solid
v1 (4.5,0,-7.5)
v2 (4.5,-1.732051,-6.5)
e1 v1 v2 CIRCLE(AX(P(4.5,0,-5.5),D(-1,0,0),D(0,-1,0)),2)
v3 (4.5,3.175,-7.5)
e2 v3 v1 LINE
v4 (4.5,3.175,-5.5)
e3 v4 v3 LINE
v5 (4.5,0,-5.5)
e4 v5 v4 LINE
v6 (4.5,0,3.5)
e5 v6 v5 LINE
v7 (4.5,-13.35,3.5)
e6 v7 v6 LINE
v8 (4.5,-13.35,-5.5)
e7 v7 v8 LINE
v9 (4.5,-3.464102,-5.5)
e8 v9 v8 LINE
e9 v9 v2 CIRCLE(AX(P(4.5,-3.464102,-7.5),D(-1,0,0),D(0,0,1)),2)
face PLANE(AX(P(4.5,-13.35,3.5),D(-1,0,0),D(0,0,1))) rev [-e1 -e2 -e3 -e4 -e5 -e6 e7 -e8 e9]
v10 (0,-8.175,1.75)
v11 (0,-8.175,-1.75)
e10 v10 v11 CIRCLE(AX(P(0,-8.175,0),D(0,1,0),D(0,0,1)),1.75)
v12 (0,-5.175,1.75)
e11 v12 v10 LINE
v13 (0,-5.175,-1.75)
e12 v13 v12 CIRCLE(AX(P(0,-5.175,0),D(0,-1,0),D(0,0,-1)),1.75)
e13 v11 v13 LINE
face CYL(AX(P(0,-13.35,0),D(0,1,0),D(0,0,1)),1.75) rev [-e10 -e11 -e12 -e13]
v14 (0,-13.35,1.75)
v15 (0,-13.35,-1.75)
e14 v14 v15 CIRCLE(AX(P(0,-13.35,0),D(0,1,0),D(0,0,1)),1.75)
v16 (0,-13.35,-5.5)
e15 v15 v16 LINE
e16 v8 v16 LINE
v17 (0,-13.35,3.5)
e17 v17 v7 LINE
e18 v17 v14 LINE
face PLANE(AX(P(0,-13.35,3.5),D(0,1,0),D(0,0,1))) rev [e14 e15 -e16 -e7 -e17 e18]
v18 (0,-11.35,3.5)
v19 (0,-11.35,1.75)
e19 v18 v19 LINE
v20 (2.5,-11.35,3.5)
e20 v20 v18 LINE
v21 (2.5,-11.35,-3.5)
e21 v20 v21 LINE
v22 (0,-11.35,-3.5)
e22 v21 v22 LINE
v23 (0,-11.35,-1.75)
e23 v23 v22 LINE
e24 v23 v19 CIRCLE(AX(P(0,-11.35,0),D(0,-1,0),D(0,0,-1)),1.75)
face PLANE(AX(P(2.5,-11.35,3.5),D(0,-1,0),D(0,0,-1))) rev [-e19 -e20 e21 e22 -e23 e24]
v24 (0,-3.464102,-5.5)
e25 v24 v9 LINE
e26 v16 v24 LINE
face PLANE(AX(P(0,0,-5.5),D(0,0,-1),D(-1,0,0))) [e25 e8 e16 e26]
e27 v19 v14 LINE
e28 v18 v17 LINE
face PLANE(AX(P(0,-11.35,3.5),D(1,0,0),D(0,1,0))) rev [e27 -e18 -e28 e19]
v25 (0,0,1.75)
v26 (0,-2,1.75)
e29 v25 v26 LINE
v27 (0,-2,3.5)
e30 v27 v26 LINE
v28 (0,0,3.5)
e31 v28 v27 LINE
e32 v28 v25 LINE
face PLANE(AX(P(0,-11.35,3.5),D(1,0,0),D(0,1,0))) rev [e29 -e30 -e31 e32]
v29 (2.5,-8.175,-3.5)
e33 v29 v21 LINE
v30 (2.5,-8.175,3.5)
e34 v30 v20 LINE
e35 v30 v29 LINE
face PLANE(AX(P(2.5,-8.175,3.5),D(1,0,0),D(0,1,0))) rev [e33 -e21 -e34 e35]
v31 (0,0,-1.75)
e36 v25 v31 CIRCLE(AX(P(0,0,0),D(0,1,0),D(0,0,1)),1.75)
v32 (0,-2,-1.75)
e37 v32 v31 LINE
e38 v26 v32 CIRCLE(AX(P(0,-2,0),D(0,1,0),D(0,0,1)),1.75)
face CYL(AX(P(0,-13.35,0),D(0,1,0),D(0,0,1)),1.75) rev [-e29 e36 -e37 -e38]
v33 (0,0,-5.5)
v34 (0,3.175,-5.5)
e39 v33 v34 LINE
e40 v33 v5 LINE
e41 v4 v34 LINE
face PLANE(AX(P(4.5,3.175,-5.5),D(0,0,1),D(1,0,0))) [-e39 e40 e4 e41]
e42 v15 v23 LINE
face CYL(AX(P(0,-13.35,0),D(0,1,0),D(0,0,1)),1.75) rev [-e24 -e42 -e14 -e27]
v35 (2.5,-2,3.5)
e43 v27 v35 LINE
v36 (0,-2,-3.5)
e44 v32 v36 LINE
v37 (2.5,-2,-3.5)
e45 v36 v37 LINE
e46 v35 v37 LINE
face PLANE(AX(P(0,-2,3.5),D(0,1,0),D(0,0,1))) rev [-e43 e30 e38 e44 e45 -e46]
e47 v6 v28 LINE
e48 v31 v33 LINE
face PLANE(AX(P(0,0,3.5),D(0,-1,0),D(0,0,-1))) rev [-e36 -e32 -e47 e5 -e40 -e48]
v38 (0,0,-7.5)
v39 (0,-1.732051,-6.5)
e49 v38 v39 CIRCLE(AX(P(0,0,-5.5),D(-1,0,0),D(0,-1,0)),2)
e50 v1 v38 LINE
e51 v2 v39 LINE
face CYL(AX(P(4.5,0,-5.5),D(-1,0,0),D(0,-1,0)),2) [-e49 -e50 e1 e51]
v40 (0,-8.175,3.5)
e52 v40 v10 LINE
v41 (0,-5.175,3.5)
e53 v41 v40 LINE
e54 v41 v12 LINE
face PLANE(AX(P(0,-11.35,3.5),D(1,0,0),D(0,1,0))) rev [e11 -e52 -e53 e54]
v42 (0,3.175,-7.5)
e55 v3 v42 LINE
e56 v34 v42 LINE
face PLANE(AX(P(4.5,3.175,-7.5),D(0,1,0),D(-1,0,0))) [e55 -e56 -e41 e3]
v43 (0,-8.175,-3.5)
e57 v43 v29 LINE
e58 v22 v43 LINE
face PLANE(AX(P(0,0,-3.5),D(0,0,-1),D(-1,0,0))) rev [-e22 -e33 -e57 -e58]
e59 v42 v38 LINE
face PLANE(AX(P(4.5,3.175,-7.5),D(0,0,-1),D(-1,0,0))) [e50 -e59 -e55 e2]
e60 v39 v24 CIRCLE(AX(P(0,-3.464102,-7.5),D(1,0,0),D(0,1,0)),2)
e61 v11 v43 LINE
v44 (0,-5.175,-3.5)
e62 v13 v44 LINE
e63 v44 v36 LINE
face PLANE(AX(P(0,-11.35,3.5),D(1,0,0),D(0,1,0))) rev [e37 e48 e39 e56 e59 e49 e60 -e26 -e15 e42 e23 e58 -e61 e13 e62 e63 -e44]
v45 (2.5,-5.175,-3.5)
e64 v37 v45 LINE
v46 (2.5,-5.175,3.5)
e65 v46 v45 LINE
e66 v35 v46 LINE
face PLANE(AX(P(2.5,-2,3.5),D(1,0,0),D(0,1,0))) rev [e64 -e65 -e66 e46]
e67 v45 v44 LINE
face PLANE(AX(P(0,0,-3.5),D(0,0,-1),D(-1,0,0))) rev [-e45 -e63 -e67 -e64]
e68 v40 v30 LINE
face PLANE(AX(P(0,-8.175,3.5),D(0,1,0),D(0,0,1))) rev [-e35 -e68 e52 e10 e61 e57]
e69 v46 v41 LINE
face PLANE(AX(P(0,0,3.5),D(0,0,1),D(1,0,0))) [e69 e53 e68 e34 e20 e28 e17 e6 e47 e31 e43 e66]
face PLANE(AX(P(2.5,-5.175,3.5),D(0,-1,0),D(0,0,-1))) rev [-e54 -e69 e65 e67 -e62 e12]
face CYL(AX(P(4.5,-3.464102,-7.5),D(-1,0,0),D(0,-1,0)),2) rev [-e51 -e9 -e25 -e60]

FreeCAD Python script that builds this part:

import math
import FreeCAD as App
import Part
import Sketcher
Q = App.Units.Quantity


def edges_at(feature, points):
    """Names of the edges that pass closest to the given points."""
    edges = feature.Shape.Edges
    near = lambda p: min(range(len(edges)), key=lambda i: edges[i].distToShape(Part.Vertex(*p))[0])
    return sorted({f"Edge{near(p) + 1}" for p in points})


def add_polygon(sketch, points):
    """Adds a closed chain of lines whose ends are joined by coincident constraints."""
    first, n = sketch.GeometryCount, len(points)
    for a, b in zip(points, points[1:] + points[:1]):
        sketch.addGeometry(Part.LineSegment(App.Vector(*a, 0), App.Vector(*b, 0)), False)
    for i in range(n):
        sketch.addConstraint(Sketcher.Constraint("Coincident", first + i, 2, first + (i + 1) % n, 1))

doc = App.newDocument("Part")
body = doc.addObject("PartDesign::Body", "Body")

# Sketch on XY plane
sketch1 = doc.addObject("Sketcher::SketchObject", "Sketch")
body.addObject(sketch1)
sketch1.AttachmentSupport = (doc.XY_Plane, [""])
sketch1.MapMode = "FlatFace"
add_polygon(sketch1, [(4.5, 0), (0, 0), (0, -2), (2.5, -2), (2.5, -5.2), (0, -5.2), (0, -8.2), (2.5, -8.2), (2.5, -11.3), (0, -11.3), (0, -13.3), (4.5, -13.3)])  # lines 0-11
sketch1.addConstraint(Sketcher.Constraint("Horizontal", 0))
sketch1.addConstraint(Sketcher.Constraint("Vertical", 1))
sketch1.addConstraint(Sketcher.Constraint("Horizontal", 2))
sketch1.addConstraint(Sketcher.Constraint("Vertical", 3))
sketch1.addConstraint(Sketcher.Constraint("Horizontal", 4))
sketch1.addConstraint(Sketcher.Constraint("Vertical", 5))
sketch1.addConstraint(Sketcher.Constraint("Horizontal", 6))
sketch1.addConstraint(Sketcher.Constraint("Vertical", 7))
sketch1.addConstraint(Sketcher.Constraint("Horizontal", 8))
sketch1.addConstraint(Sketcher.Constraint("Vertical", 9))
sketch1.addConstraint(Sketcher.Constraint("Horizontal", 10))
sketch1.addConstraint(Sketcher.Constraint("Vertical", 11))
sketch1.addConstraint(Sketcher.Constraint("Coincident", 0, 2, -1, 1))
sketch1.addConstraint(Sketcher.Constraint("PointOnObject", 4, 2, -2))
sketch1.addConstraint(Sketcher.Constraint("PointOnObject", 8, 2, -2))
sketch1.addConstraint(Sketcher.Constraint("Vertical", 3, 2, 6, 2))
sketch1.addConstraint(Sketcher.Constraint("Equal", 3, 7))
sketch1.addConstraint(Sketcher.Constraint("Equal", 1, 9))
sketch1.addConstraint(Sketcher.Constraint("DistanceY", 1, 2, 1, 1, Q("2 mm")))
sketch1.addConstraint(Sketcher.Constraint("DistanceY", 5, 2, 5, 1, Q("3 mm")))
sketch1.addConstraint(Sketcher.Constraint("DistanceX", 0, 2, 0, 1, Q("4.5 mm")))
sketch1.addConstraint(Sketcher.Constraint("DistanceX", 2, 1, 2, 2, Q("2.5 mm")))
sketch1.addConstraint(Sketcher.Constraint("DistanceY", 11, 1, 11, 2, Q("13.35 mm")))
pad1 = doc.addObject("PartDesign::Pad", "Pad")
body.addObject(pad1)
pad1.Profile = sketch1
pad1.Length = 7
pad1.Midplane = True

# Sketch on XY plane
sketch2 = doc.addObject("Sketcher::SketchObject", "Sketch001")
body.addObject(sketch2)
sketch2.AttachmentSupport = (doc.XY_Plane, [""])
sketch2.MapMode = "FlatFace"
sketch2.AttachmentOffset = App.Placement(App.Vector(0, 0, -3.5), App.Rotation())
add_polygon(sketch2, [(4.5, 0), (4.5, -13.3), (0, -13.3), (0, 0)])  # lines 0-3
sketch2.addConstraint(Sketcher.Constraint("Vertical", 0))
sketch2.addConstraint(Sketcher.Constraint("Horizontal", 1))
sketch2.addConstraint(Sketcher.Constraint("Vertical", 2))
sketch2.addConstraint(Sketcher.Constraint("Horizontal", 3))
sketch2.addConstraint(Sketcher.Constraint("Coincident", 2, 2, -1, 1))
sketch2.addConstraint(Sketcher.Constraint("DistanceX", 1, 2, 1, 1, Q("4.5 mm")))
sketch2.addConstraint(Sketcher.Constraint("DistanceY", 0, 2, 0, 1, Q("13.35 mm")))
pad2 = doc.addObject("PartDesign::Pad", "Pad001")
body.addObject(pad2)
pad2.Profile = sketch2
pad2.Length = 2
pad2.Reversed = True

# Sketch on XZ plane
sketch3 = doc.addObject("Sketcher::SketchObject", "Sketch002")
body.addObject(sketch3)
sketch3.AttachmentSupport = (doc.XZ_Plane, [""])
sketch3.MapMode = "FlatFace"
sketch3.addGeometry(Part.Circle(App.Vector(0, 0, 0), App.Vector(0, 0, 1), 1.8), False)
sketch3.addConstraint(Sketcher.Constraint("Coincident", 0, 3, -1, 1))
sketch3.addConstraint(Sketcher.Constraint("Diameter", 0, Q("3.5 mm")))
pocket1 = doc.addObject("PartDesign::Pocket", "Pocket")
body.addObject(pocket1)
pocket1.Profile = sketch3
pocket1.Type = "ThroughAll"
pocket1.Reversed = True

# Sketch on YZ plane
sketch4 = doc.addObject("Sketcher::SketchObject", "Sketch003")
body.addObject(sketch4)
sketch4.AttachmentSupport = (doc.YZ_Plane, [""])
sketch4.MapMode = "FlatFace"
sketch4.addGeometry(Part.LineSegment(App.Vector(3.2, -5.5, 0), App.Vector(3.2, -7.5, 0)), False)
sketch4.addGeometry(Part.LineSegment(App.Vector(3.2, -7.5, 0), App.Vector(0, -7.5, 0)), False)
sketch4.addGeometry(Part.ArcOfCircle(Part.Circle(App.Vector(0, -5.5, 0), App.Vector(0, 0, 1), 2), math.radians(-180), math.radians(-90)), False)
sketch4.addGeometry(Part.LineSegment(App.Vector(-2, -5.5, 0), App.Vector(3.2, -5.5, 0)), False)
sketch4.addConstraint(Sketcher.Constraint("Coincident", 0, 2, 1, 1))
sketch4.addConstraint(Sketcher.Constraint("Tangent", 1, 2, 2, 2))
sketch4.addConstraint(Sketcher.Constraint("Coincident", 2, 1, 3, 1))
sketch4.addConstraint(Sketcher.Constraint("Coincident", 3, 2, 0, 1))
sketch4.addConstraint(Sketcher.Constraint("Vertical", 0))
sketch4.addConstraint(Sketcher.Constraint("Horizontal", 1))
sketch4.addConstraint(Sketcher.Constraint("Horizontal", 3))
sketch4.addConstraint(Sketcher.Constraint("PointOnObject", 2, 3, -2))
sketch4.addConstraint(Sketcher.Constraint("Radius", 2, Q("2 mm")))
sketch4.addConstraint(Sketcher.Constraint("DistanceY", 0, 2, 0, 1, Q("2 mm")))
sketch4.addConstraint(Sketcher.Constraint("DistanceY", 2, 3, -1, 1, Q("5.5 mm")))
sketch4.addConstraint(Sketcher.Constraint("DistanceX", 1, 2, 1, 1, Q("3.175 mm")))
pad3 = doc.addObject("PartDesign::Pad", "Pad002")
body.addObject(pad3)
pad3.Profile = sketch4
pad3.Length = 4.5
doc.recompute()

fillet = doc.addObject("PartDesign::Fillet", "Fillet")
body.addObject(fillet)
fillet.Base = (pad3, edges_at(pad3, [(2.25, -2, -5.5)]))
fillet.Radius = 2

doc.recompute()
